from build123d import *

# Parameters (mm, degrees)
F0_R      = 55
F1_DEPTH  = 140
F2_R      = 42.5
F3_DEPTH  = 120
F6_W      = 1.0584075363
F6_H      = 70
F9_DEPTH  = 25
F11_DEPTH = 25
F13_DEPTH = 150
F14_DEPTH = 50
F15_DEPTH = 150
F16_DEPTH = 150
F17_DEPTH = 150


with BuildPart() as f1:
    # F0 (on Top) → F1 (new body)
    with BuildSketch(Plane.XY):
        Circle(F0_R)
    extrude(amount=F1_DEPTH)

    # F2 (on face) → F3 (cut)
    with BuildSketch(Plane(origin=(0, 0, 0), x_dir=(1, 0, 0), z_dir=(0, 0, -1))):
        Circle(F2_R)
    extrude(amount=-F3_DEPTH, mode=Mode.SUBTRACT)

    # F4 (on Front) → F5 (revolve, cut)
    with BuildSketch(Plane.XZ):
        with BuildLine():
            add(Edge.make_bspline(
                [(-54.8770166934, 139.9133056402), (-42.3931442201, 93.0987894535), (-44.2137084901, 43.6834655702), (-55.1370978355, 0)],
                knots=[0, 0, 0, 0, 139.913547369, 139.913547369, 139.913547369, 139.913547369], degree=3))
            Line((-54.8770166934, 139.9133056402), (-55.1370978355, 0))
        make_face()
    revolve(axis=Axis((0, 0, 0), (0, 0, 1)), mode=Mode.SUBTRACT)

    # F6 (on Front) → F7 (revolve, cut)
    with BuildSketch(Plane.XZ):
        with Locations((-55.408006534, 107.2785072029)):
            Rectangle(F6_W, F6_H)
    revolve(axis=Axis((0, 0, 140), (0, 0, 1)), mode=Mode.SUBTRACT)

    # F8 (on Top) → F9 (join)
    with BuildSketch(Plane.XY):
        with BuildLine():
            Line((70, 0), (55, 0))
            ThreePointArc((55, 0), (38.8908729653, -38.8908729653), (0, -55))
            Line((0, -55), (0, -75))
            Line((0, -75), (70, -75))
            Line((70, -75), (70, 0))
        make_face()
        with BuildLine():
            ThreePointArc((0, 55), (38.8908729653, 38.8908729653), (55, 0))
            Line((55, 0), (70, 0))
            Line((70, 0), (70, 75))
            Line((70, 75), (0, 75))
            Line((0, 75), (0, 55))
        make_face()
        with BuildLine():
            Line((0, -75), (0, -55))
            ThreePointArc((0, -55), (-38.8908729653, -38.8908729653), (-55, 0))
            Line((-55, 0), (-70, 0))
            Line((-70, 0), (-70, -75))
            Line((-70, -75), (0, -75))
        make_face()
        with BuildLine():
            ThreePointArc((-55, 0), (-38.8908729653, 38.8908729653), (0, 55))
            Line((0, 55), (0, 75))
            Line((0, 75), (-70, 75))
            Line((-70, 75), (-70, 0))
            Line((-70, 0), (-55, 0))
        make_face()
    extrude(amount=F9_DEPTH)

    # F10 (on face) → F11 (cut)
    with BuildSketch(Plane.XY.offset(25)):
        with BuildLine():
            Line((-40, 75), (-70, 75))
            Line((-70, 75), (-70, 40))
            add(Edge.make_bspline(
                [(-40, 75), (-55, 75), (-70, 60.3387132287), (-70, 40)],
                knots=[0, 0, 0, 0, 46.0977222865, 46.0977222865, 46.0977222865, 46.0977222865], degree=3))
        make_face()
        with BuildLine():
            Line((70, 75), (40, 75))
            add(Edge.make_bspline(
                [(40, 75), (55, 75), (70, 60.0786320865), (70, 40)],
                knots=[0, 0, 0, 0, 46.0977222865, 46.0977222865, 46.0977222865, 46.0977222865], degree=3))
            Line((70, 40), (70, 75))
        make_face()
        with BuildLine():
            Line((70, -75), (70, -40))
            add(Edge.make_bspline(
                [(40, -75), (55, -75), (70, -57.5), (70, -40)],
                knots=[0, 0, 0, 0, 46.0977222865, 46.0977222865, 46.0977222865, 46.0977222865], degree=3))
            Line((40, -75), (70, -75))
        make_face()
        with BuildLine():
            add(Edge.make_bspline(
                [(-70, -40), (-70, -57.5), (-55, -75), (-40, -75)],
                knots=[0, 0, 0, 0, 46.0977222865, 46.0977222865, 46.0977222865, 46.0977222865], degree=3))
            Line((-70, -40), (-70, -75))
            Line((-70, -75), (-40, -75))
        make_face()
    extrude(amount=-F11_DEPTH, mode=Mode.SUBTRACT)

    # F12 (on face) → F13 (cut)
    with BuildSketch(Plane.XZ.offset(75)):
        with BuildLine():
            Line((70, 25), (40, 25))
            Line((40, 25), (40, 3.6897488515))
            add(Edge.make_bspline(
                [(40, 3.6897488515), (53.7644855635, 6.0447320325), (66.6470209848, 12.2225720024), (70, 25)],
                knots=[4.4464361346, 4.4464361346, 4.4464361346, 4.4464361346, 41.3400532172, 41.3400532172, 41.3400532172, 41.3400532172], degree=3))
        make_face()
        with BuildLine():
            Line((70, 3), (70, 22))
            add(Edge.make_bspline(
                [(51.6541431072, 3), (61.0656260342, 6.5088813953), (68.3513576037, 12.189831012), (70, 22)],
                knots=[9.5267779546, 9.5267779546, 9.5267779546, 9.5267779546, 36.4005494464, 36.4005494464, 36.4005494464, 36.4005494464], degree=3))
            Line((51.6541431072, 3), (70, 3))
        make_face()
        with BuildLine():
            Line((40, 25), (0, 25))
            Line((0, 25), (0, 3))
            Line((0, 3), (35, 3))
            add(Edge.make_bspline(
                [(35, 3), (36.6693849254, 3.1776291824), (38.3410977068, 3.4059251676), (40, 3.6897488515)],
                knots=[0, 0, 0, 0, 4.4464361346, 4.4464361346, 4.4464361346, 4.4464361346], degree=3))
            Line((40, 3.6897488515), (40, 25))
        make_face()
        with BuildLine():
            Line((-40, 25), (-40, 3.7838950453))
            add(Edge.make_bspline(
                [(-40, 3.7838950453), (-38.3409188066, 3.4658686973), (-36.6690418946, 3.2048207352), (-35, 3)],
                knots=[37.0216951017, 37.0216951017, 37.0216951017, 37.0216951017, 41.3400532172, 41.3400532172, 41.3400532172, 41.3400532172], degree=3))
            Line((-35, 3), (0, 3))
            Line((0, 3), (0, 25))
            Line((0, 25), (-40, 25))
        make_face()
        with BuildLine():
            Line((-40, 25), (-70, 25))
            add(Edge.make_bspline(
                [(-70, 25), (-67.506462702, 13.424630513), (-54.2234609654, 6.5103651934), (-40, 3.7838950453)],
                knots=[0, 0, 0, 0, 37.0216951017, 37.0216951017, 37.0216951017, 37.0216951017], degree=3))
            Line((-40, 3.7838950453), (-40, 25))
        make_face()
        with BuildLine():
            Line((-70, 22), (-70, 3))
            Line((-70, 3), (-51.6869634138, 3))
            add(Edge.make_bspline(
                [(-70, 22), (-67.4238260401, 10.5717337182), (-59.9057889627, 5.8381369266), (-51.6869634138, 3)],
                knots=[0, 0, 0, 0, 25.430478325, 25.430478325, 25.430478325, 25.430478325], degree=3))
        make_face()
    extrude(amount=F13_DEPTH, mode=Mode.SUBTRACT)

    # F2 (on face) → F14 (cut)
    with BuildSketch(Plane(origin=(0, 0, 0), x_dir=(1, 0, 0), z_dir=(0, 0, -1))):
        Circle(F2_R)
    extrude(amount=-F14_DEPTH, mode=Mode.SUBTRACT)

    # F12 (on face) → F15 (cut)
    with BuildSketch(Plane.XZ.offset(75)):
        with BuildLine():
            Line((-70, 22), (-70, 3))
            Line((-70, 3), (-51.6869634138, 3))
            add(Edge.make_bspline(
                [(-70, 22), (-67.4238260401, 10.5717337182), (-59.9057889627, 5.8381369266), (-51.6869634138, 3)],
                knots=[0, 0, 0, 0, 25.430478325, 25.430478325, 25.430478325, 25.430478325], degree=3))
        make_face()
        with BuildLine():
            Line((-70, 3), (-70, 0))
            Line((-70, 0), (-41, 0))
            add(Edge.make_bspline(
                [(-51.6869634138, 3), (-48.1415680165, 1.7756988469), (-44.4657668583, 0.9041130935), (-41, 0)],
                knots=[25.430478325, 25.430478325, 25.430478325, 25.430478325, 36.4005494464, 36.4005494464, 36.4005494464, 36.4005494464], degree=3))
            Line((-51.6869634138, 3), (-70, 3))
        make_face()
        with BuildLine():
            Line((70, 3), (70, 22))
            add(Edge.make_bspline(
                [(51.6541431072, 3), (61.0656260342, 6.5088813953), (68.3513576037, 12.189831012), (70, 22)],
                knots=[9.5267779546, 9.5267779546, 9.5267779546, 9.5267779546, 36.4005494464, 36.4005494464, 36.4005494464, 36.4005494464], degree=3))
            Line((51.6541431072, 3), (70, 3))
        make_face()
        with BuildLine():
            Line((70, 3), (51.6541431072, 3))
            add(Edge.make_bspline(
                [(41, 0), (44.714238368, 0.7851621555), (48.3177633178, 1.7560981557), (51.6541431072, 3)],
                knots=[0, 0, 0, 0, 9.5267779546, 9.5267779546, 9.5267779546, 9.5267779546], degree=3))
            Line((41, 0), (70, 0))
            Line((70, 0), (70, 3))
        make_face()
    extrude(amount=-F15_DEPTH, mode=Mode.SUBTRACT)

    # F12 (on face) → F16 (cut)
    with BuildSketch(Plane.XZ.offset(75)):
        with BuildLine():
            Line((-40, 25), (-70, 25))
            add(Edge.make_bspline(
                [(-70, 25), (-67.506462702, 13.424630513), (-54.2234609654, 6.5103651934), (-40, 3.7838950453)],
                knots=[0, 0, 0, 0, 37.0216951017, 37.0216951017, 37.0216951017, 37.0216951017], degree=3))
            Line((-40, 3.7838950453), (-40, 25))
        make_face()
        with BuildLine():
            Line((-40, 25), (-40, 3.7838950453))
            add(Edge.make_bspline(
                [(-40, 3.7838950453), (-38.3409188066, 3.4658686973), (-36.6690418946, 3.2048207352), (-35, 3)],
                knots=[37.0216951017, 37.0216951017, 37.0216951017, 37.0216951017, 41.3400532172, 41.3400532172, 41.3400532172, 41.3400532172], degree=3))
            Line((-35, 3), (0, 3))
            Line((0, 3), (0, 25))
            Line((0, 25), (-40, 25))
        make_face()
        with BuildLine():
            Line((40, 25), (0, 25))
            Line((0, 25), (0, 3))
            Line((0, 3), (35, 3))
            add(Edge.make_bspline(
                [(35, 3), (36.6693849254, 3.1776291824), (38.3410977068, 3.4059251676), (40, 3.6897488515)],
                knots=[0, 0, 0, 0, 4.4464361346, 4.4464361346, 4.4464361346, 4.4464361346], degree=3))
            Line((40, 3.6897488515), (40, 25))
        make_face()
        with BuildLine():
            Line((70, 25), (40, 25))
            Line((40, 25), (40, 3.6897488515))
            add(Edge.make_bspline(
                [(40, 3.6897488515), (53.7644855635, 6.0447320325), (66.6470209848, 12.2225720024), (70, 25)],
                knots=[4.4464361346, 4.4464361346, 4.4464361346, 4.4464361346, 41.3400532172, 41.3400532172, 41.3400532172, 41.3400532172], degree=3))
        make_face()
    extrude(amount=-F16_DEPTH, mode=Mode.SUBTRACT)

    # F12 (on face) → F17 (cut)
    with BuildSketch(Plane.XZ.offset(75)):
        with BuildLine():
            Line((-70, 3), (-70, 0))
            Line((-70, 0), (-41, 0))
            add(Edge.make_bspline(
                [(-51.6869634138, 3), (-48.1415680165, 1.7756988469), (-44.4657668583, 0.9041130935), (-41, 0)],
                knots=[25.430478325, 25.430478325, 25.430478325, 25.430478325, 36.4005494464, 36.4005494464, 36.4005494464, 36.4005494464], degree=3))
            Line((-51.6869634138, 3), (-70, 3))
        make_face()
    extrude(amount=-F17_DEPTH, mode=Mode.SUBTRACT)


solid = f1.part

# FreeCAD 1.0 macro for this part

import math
import FreeCAD as App
import Part
import Sketcher

V = App.Vector
Q = App.Units.Quantity


def add_polygon(sketch, points):
    """Adds a closed chain of lines whose ends are joined by coincident constraints."""
    first, n = sketch.GeometryCount, len(points)
    for a, b in zip(points, points[1:] + points[:1]):
        sketch.addGeometry(Part.LineSegment(App.Vector(*a, 0), App.Vector(*b, 0)), False)
    for i in range(n):
        sketch.addConstraint(Sketcher.Constraint("Coincident", first + i, 2, first + (i + 1) % n, 1))

doc = App.newDocument("Part")
body = doc.addObject("PartDesign::Body", "Body")
body.AllowCompound = True

sketch1 = body.newObject("Sketcher::SketchObject", "Sketch")
sketch1.AttachmentSupport = (doc.getObject("XY_Plane"), [""])
sketch1.MapMode = "FlatFace"
sketch1.addGeometry(Part.Circle(V(0, 0, 0), V(0, 0, 1), 55), False)
sketch1.addConstraint(Sketcher.Constraint("Coincident", 0, 3, -1, 1))
sketch1.addConstraint(Sketcher.Constraint("Diameter", 0, Q("110 mm")))
pad1 = body.newObject("PartDesign::Pad", "Pad")
pad1.Profile = sketch1
pad1.Length = 140

sketch2 = body.newObject("Sketcher::SketchObject", "Sketch001")
sketch2.AttachmentSupport = (doc.getObject("XY_Plane"), [""])
sketch2.MapMode = "FlatFace"
sketch2.addGeometry(Part.Circle(V(0, 0, 0), V(0, 0, 1), 42), False)
sketch2.addConstraint(Sketcher.Constraint("Coincident", 0, 3, -1, 1))
sketch2.addConstraint(Sketcher.Constraint("Diameter", 0, Q("85 mm")))
pocket1 = body.newObject("PartDesign::Pocket", "Pocket")
pocket1.Profile = sketch2
pocket1.Length = 120
pocket1.Reversed = True

sketch3 = body.newObject("Sketcher::SketchObject", "Sketch002")
sketch3.AttachmentSupport = (doc.getObject("XZ_Plane"), [""])
sketch3.MapMode = "FlatFace"
sketch3.addGeometry(Part.BSplineCurve([V(-54.877017, 139.913306, 0), V(-42.393144, 93.098789, 0), V(-44.213708, 43.683466, 0), V(-55.137098, 0, 0)], [4, 4], [0, 139.913547369], False, 3, [1, 1, 1, 1], False), False)
sketch3.addGeometry(Part.LineSegment(V(-54.877017, 139.913306, 0), V(-55.137098, 0, 0)), False)
sketch3.addConstraint(Sketcher.Constraint("Block", 0))
sketch3.addConstraint(Sketcher.Constraint("Coincident", 0, 1, 1, 1))
sketch3.addConstraint(Sketcher.Constraint("Coincident", 1, 2, 0, 2))
groove = body.newObject("PartDesign::Groove", "Groove")
groove.Profile = sketch3
groove.ReferenceAxis = (sketch3, ["V_Axis"])
groove.Angle = 360

sketch4 = body.newObject("Sketcher::SketchObject", "Sketch003")
sketch4.AttachmentSupport = (doc.getObject("XZ_Plane"), [""])
sketch4.MapMode = "FlatFace"
add_polygon(sketch4, [(-55.9, 142.3), (-55.9, 72.3), (-54.9, 72.3), (-54.9, 142.3)])
sketch4.addConstraint(Sketcher.Constraint("Vertical", 0))
sketch4.addConstraint(Sketcher.Constraint("Horizontal", 1))
sketch4.addConstraint(Sketcher.Constraint("Vertical", 2))
sketch4.addConstraint(Sketcher.Constraint("Horizontal", 3))
sketch4.addConstraint(Sketcher.Constraint("DistanceY", 0, 2, 0, 1, Q("70 mm")))
sketch4.addConstraint(Sketcher.Constraint("DistanceX", 1, 1, 1, 2, Q("1.058408 mm")))
sketch4.addConstraint(Sketcher.Constraint("DistanceX", 0, 2, -1, 1, Q("55.93721 mm")))
sketch4.addConstraint(Sketcher.Constraint("DistanceY", -1, 1, 0, 2, Q("72.278507 mm")))
groove2 = body.newObject("PartDesign::Groove", "Groove001")
groove2.Profile = sketch4
groove2.ReferenceAxis = (sketch4, ["V_Axis"])
groove2.Angle = 360

sketch5 = body.newObject("Sketcher::SketchObject", "Sketch004")
sketch5.AttachmentSupport = (doc.getObject("XY_Plane"), [""])
sketch5.MapMode = "FlatFace"
add_polygon(sketch5, [(-70, -75), (70, -75), (70, 75), (-70, 75)])
sketch5.addGeometry(Part.ArcOfCircle(Part.Circle(V(0, 0, 0), V(0, 0, 1), 55), math.radians(-90), math.radians(0)), False)
sketch5.addGeometry(Part.ArcOfCircle(Part.Circle(V(0, 0, 0), V(0, 0, 1), 55), math.radians(180), math.radians(270)), False)
sketch5.addGeometry(Part.ArcOfCircle(Part.Circle(V(0, 0, 0), V(0, 0, 1), 55), math.radians(90), math.radians(180)), False)
sketch5.addGeometry(Part.ArcOfCircle(Part.Circle(V(0, 0, 0), V(0, 0, 1), 55), math.radians(0), math.radians(90)), False)
sketch5.addConstraint(Sketcher.Constraint("Tangent", 4, 1, 5, 2))
sketch5.addConstraint(Sketcher.Constraint("Tangent", 5, 1, 6, 2))
sketch5.addConstraint(Sketcher.Constraint("Tangent", 6, 1, 7, 2))
sketch5.addConstraint(Sketcher.Constraint("Tangent", 7, 1, 4, 2))
sketch5.addConstraint(Sketcher.Constraint("Horizontal", 0))
sketch5.addConstraint(Sketcher.Constraint("Vertical", 1))
sketch5.addConstraint(Sketcher.Constraint("Horizontal", 2))
sketch5.addConstraint(Sketcher.Constraint("Vertical", 3))
sketch5.addConstraint(Sketcher.Constraint("Coincident", 4, 3, -1, 1))
sketch5.addConstraint(Sketcher.Constraint("Equal", 4, 5))
sketch5.addConstraint(Sketcher.Constraint("Symmetric", 0, 2, 2, 2, -1, 1))
sketch5.addConstraint(Sketcher.Constraint("PointOnObject", 4, 1, -2))
sketch5.addConstraint(Sketcher.Constraint("PointOnObject", 5, 1, -1))
sketch5.addConstraint(Sketcher.Constraint("PointOnObject", 6, 1, -2))
sketch5.addConstraint(Sketcher.Constraint("PointOnObject", 7, 1, -1))
sketch5.addConstraint(Sketcher.Constraint("Radius", 4, Q("55 mm")))
sketch5.addConstraint(Sketcher.Constraint("DistanceX", 0, 1, 0, 2, Q("140 mm")))
sketch5.addConstraint(Sketcher.Constraint("DistanceY", 1, 1, 1, 2, Q("150 mm")))
pad2 = body.newObject("PartDesign::Pad", "Pad001")
pad2.Profile = sketch5
pad2.Length = 25

sketch6 = body.newObject("Sketcher::SketchObject", "Sketch005")
sketch6.AttachmentSupport = (doc.getObject("XY_Plane"), [""])
sketch6.MapMode = "FlatFace"
sketch6.AttachmentOffset = App.Placement(V(0, 0, 25), App.Rotation())
sketch6.addGeometry(Part.LineSegment(V(-40, 75, 0), V(-70, 75, 0)), False)
sketch6.addGeometry(Part.LineSegment(V(-70, 75, 0), V(-70, 40, 0)), False)
sketch6.addGeometry(Part.BSplineCurve([V(-40, 75, 0), V(-55, 75, 0), V(-70, 60.338713, 0), V(-70, 40, 0)], [4, 4], [0, 46.097722287], False, 3, [1, 1, 1, 1], False), False)
sketch6.addGeometry(Part.LineSegment(V(70, 75, 0), V(40, 75, 0)), False)
sketch6.addGeometry(Part.BSplineCurve([V(40, 75, 0), V(55, 75, 0), V(70, 60.078632, 0), V(70, 40, 0)], [4, 4], [0, 46.097722287], False, 3, [1, 1, 1, 1], False), False)
sketch6.addGeometry(Part.LineSegment(V(70, 40, 0), V(70, 75, 0)), False)
sketch6.addGeometry(Part.LineSegment(V(70, -75, 0), V(70, -40, 0)), False)
sketch6.addGeometry(Part.BSplineCurve([V(40, -75, 0), V(55, -75, 0), V(70, -57.5, 0), V(70, -40, 0)], [4, 4], [0, 46.097722287], False, 3, [1, 1, 1, 1], False), False)
sketch6.addGeometry(Part.LineSegment(V(40, -75, 0), V(70, -75, 0)), False)
sketch6.addGeometry(Part.BSplineCurve([V(-70, -40, 0), V(-70, -57.5, 0), V(-55, -75, 0), V(-40, -75, 0)], [4, 4], [0, 46.097722287], False, 3, [1, 1, 1, 1], False), False)
sketch6.addGeometry(Part.LineSegment(V(-70, -40, 0), V(-70, -75, 0)), False)
sketch6.addGeometry(Part.LineSegment(V(-70, -75, 0), V(-40, -75, 0)), False)
sketch6.addConstraint(Sketcher.Constraint("Block", 2))
sketch6.addConstraint(Sketcher.Constraint("Block", 4))
sketch6.addConstraint(Sketcher.Constraint("Block", 7))
sketch6.addConstraint(Sketcher.Constraint("Block", 9))
sketch6.addConstraint(Sketcher.Constraint("Coincident", 0, 2, 1, 1))
sketch6.addConstraint(Sketcher.Constraint("Coincident", 1, 2, 2, 2))
sketch6.addConstraint(Sketcher.Constraint("Coincident", 2, 1, 0, 1))
sketch6.addConstraint(Sketcher.Constraint("Coincident", 3, 2, 4, 1))
sketch6.addConstraint(Sketcher.Constraint("Coincident", 4, 2, 5, 1))
sketch6.addConstraint(Sketcher.Constraint("Coincident", 5, 2, 3, 1))
sketch6.addConstraint(Sketcher.Constraint("Coincident", 6, 2, 7, 2))
sketch6.addConstraint(Sketcher.Constraint("Coincident", 7, 1, 8, 1))
sketch6.addConstraint(Sketcher.Constraint("Coincident", 8, 2, 6, 1))
sketch6.addConstraint(Sketcher.Constraint("Coincident", 9, 1, 10, 1))
sketch6.addConstraint(Sketcher.Constraint("Coincident", 10, 2, 11, 1))
sketch6.addConstraint(Sketcher.Constraint("Coincident", 11, 2, 9, 2))
sketch6.addConstraint(Sketcher.Constraint("Horizontal", 0))
sketch6.addConstraint(Sketcher.Constraint("Vertical", 1))
sketch6.addConstraint(Sketcher.Constraint("Horizontal", 3))
sketch6.addConstraint(Sketcher.Constraint("Vertical", 5))
sketch6.addConstraint(Sketcher.Constraint("Vertical", 6))
sketch6.addConstraint(Sketcher.Constraint("Horizontal", 8))
sketch6.addConstraint(Sketcher.Constraint("Vertical", 10))
sketch6.addConstraint(Sketcher.Constraint("Horizontal", 11))
pocket2 = body.newObject("PartDesign::Pocket", "Pocket001")
pocket2.Profile = sketch6
pocket2.Length = 25

sketch7 = body.newObject("Sketcher::SketchObject", "Sketch006")
sketch7.AttachmentSupport = (doc.getObject("XZ_Plane"), [""])
sketch7.MapMode = "FlatFace"
sketch7.AttachmentOffset = App.Placement(V(0, 0, 75), App.Rotation())
sketch7.addGeometry(Part.LineSegment(V(70, 25, 0), V(-70, 25, 0)), False)
sketch7.addGeometry(Part.BSplineCurve([V(-70, 25, 0), V(-67.506463, 13.424631, 0), V(-54.223461, 6.510365, 0), V(-40, 3.783895, 0)], [4, 4], [0, 37.021695102], False, 3, [1, 1, 1, 1], False), False)
sketch7.addGeometry(Part.BSplineCurve([V(-40, 3.783895, 0), V(-38.340919, 3.465869, 0), V(-36.669042, 3.204821, 0), V(-35, 3, 0)], [4, 4], [37.021695102, 41.340053217], False, 3, [1, 1, 1, 1], False), False)
sketch7.addGeometry(Part.LineSegment(V(-35, 3, 0), V(35, 3, 0)), False)
sketch7.addGeometry(Part.BSplineCurve([V(35, 3, 0), V(36.669385, 3.177629, 0), V(38.341098, 3.405925, 0), V(40, 3.689749, 0)], [4, 4], [0, 4.446436135], False, 3, [1, 1, 1, 1], False), False)
sketch7.addGeometry(Part.BSplineCurve([V(40, 3.689749, 0), V(53.764486, 6.044732, 0), V(66.647021, 12.222572, 0), V(70, 25, 0)], [4, 4], [4.446436135, 41.340053217], False, 3, [1, 1, 1, 1], False), False)
sketch7.addGeometry(Part.LineSegment(V(70, 3, 0), V(70, 22, 0)), False)
sketch7.addGeometry(Part.BSplineCurve([V(51.654143, 3, 0), V(61.065626, 6.508881, 0), V(68.351358, 12.189831, 0), V(70, 22, 0)], [4, 4], [9.526777955, 36.400549446], False, 3, [1, 1, 1, 1], False), False)
sketch7.addGeometry(Part.LineSegment(V(51.654143, 3, 0), V(70, 3, 0)), False)
sketch7.addGeometry(Part.LineSegment(V(-70, 22, 0), V(-70, 3, 0)), False)
sketch7.addGeometry(Part.LineSegment(V(-70, 3, 0), V(-51.686963, 3, 0)), False)
sketch7.addGeometry(Part.BSplineCurve([V(-70, 22, 0), V(-67.423826, 10.571734, 0), V(-59.905789, 5.838137, 0), V(-51.686963, 3, 0)], [4, 4], [0, 25.430478325], False, 3, [1, 1, 1, 1], False), False)
sketch7.addConstraint(Sketcher.Constraint("Block", 1))
sketch7.addConstraint(Sketcher.Constraint("Block", 2))
sketch7.addConstraint(Sketcher.Constraint("Block", 4))
sketch7.addConstraint(Sketcher.Constraint("Block", 5))
sketch7.addConstraint(Sketcher.Constraint("Block", 7))
sketch7.addConstraint(Sketcher.Constraint("Block", 11))
sketch7.addConstraint(Sketcher.Constraint("Coincident", 0, 2, 1, 1))
sketch7.addConstraint(Sketcher.Constraint("Coincident", 2, 2, 3, 1))
sketch7.addConstraint(Sketcher.Constraint("Coincident", 3, 2, 4, 1))
sketch7.addConstraint(Sketcher.Constraint("Coincident", 5, 2, 0, 1))
sketch7.addConstraint(Sketcher.Constraint("Coincident", 6, 2, 7, 2))
sketch7.addConstraint(Sketcher.Constraint("Coincident", 7, 1, 8, 1))
sketch7.addConstraint(Sketcher.Constraint("Coincident", 8, 2, 6, 1))
sketch7.addConstraint(Sketcher.Constraint("Coincident", 9, 2, 10, 1))
sketch7.addConstraint(Sketcher.Constraint("Coincident", 10, 2, 11, 2))
sketch7.addConstraint(Sketcher.Constraint("Coincident", 11, 1, 9, 1))
sketch7.addConstraint(Sketcher.Constraint("Vertical", 6))
sketch7.addConstraint(Sketcher.Constraint("Horizontal", 8))
sketch7.addConstraint(Sketcher.Constraint("Vertical", 9))
sketch7.addConstraint(Sketcher.Constraint("Horizontal", 10))
pocket3 = body.newObject("PartDesign::Pocket", "Pocket002")
pocket3.Profile = sketch7
pocket3.Length = 150
pocket3.Reversed = True

sketch8 = body.newObject("Sketcher::SketchObject", "Sketch007")
sketch8.AttachmentSupport = (doc.getObject("XY_Plane"), [""])
sketch8.MapMode = "FlatFace"
sketch8.addGeometry(Part.Circle(V(0, 0, 0), V(0, 0, 1), 42), False)
sketch8.addConstraint(Sketcher.Constraint("Coincident", 0, 3, -1, 1))
sketch8.addConstraint(Sketcher.Constraint("Diameter", 0, Q("85 mm")))
pocket4 = body.newObject("PartDesign::Pocket", "Pocket003")
pocket4.Profile = sketch8
pocket4.Length = 50
pocket4.Reversed = True

sketch9 = body.newObject("Sketcher::SketchObject", "Sketch008")
sketch9.AttachmentSupport = (doc.getObject("XZ_Plane"), [""])
sketch9.MapMode = "FlatFace"
sketch9.AttachmentOffset = App.Placement(V(0, 0, 75), App.Rotation())
sketch9.addGeometry(Part.LineSegment(V(-70, 22, 0), V(-70, 0, 0)), False)
sketch9.addGeometry(Part.LineSegment(V(-70, 0, 0), V(-41, 0, 0)), False)
sketch9.addGeometry(Part.BSplineCurve([V(-51.686963, 3, 0), V(-48.141568, 1.775699, 0), V(-44.465767, 0.904113, 0), V(-41, 0, 0)], [4, 4], [25.430478325, 36.400549446], False, 3, [1, 1, 1, 1], False), False)
sketch9.addGeometry(Part.BSplineCurve([V(-70, 22, 0), V(-67.423826, 10.571734, 0), V(-59.905789, 5.838137, 0), V(-51.686963, 3, 0)], [4, 4], [0, 25.430478325], False, 3, [1, 1, 1, 1], False), False)
sketch9.addGeometry(Part.BSplineCurve([V(51.654143, 3, 0), V(61.065626, 6.508881, 0), V(68.351358, 12.189831, 0), V(70, 22, 0)], [4, 4], [9.526777955, 36.400549446], False, 3, [1, 1, 1, 1], False), False)
sketch9.addGeometry(Part.BSplineCurve([V(41, 0, 0), V(44.714238, 0.785162, 0), V(48.317763, 1.756098, 0), V(51.654143, 3, 0)], [4, 4], [0, 9.526777955], False, 3, [1, 1, 1, 1], False), False)
sketch9.addGeometry(Part.LineSegment(V(41, 0, 0), V(70, 0, 0)), False)
sketch9.addGeometry(Part.LineSegment(V(70, 0, 0), V(70, 22, 0)), False)
sketch9.addConstraint(Sketcher.Constraint("Block", 2))
sketch9.addConstraint(Sketcher.Constraint("Block", 3))
sketch9.addConstraint(Sketcher.Constraint("Block", 4))
sketch9.addConstraint(Sketcher.Constraint("Block", 5))
sketch9.addConstraint(Sketcher.Constraint("Coincident", 0, 2, 1, 1))
sketch9.addConstraint(Sketcher.Constraint("Coincident", 1, 2, 2, 2))
sketch9.addConstraint(Sketcher.Constraint("Coincident", 3, 1, 0, 1))
sketch9.addConstraint(Sketcher.Constraint("Coincident", 5, 1, 6, 1))
sketch9.addConstraint(Sketcher.Constraint("Coincident", 6, 2, 7, 1))
sketch9.addConstraint(Sketcher.Constraint("Coincident", 7, 2, 4, 2))
sketch9.addConstraint(Sketcher.Constraint("Vertical", 0))
sketch9.addConstraint(Sketcher.Constraint("Horizontal", 1))
sketch9.addConstraint(Sketcher.Constraint("Horizontal", 6))
sketch9.addConstraint(Sketcher.Constraint("Vertical", 7))
pocket5 = body.newObject("PartDesign::Pocket", "Pocket004")
pocket5.Profile = sketch9
pocket5.Length = 150

sketch10 = body.newObject("Sketcher::SketchObject", "Sketch009")
sketch10.AttachmentSupport = (doc.getObject("XZ_Plane"), [""])
sketch10.MapMode = "FlatFace"
sketch10.AttachmentOffset = App.Placement(V(0, 0, 75), App.Rotation())
sketch10.addGeometry(Part.BSplineCurve([V(-70, 25, 0), V(-67.506463, 13.424631, 0), V(-54.223461, 6.510365, 0), V(-40, 3.783895, 0)], [4, 4], [0, 37.021695102], False, 3, [1, 1, 1, 1], False), False)
sketch10.addGeometry(Part.BSplineCurve([V(-40, 3.783895, 0), V(-38.340919, 3.465869, 0), V(-36.669042, 3.204821, 0), V(-35, 3, 0)], [4, 4], [37.021695102, 41.340053217], False, 3, [1, 1, 1, 1], False), False)
sketch10.addGeometry(Part.LineSegment(V(-35, 3, 0), V(35, 3, 0)), False)
sketch10.addGeometry(Part.BSplineCurve([V(35, 3, 0), V(36.669385, 3.177629, 0), V(38.341098, 3.405925, 0), V(40, 3.689749, 0)], [4, 4], [0, 4.446436135], False, 3, [1, 1, 1, 1], False), False)
sketch10.addGeometry(Part.BSplineCurve([V(40, 3.689749, 0), V(53.764486, 6.044732, 0), V(66.647021, 12.222572, 0), V(70, 25, 0)], [4, 4], [4.446436135, 41.340053217], False, 3, [1, 1, 1, 1], False), False)
sketch10.addGeometry(Part.LineSegment(V(70, 25, 0), V(-70, 25, 0)), False)
sketch10.addConstraint(Sketcher.Constraint("Block", 0))
sketch10.addConstraint(Sketcher.Constraint("Block", 1))
sketch10.addConstraint(Sketcher.Constraint("Block", 3))
sketch10.addConstraint(Sketcher.Constraint("Block", 4))
sketch10.addConstraint(Sketcher.Constraint("Coincident", 1, 2, 2, 1))
sketch10.addConstraint(Sketcher.Constraint("Coincident", 2, 2, 3, 1))
sketch10.addConstraint(Sketcher.Constraint("Coincident", 4, 2, 5, 1))
sketch10.addConstraint(Sketcher.Constraint("Coincident", 5, 2, 0, 1))
pocket6 = body.newObject("PartDesign::Pocket", "Pocket005")
pocket6.Profile = sketch10
pocket6.Length = 150

sketch11 = body.newObject("Sketcher::SketchObject", "Sketch010")
sketch11.AttachmentSupport = (doc.getObject("XZ_Plane"), [""])
sketch11.MapMode = "FlatFace"
sketch11.AttachmentOffset = App.Placement(V(0, 0, 75), App.Rotation())
sketch11.addGeometry(Part.LineSegment(V(-70, 3, 0), V(-70, 0, 0)), False)
sketch11.addGeometry(Part.LineSegment(V(-70, 0, 0), V(-41, 0, 0)), False)
sketch11.addGeometry(Part.BSplineCurve([V(-51.686963, 3, 0), V(-48.141568, 1.775699, 0), V(-44.465767, 0.904113, 0), V(-41, 0, 0)], [4, 4], [25.430478325, 36.400549446], False, 3, [1, 1, 1, 1], False), False)
sketch11.addGeometry(Part.LineSegment(V(-51.686963, 3, 0), V(-70, 3, 0)), False)
sketch11.addConstraint(Sketcher.Constraint("Block", 2))
sketch11.addConstraint(Sketcher.Constraint("Coincident", 0, 2, 1, 1))
sketch11.addConstraint(Sketcher.Constraint("Coincident", 1, 2, 2, 2))
sketch11.addConstraint(Sketcher.Constraint("Coincident", 2, 1, 3, 1))
sketch11.addConstraint(Sketcher.Constraint("Coincident", 3, 2, 0, 1))
sketch11.addConstraint(Sketcher.Constraint("Vertical", 0))
sketch11.addConstraint(Sketcher.Constraint("Horizontal", 1))
sketch11.addConstraint(Sketcher.Constraint("Horizontal", 3))
sketch11.addConstraint(Sketcher.Constraint("DistanceX", 1, 1, 1, 2, Q("29 mm")))
pocket7 = body.newObject("PartDesign::Pocket", "Pocket006")
pocket7.Profile = sketch11
pocket7.Length = 150

doc.recompute()
